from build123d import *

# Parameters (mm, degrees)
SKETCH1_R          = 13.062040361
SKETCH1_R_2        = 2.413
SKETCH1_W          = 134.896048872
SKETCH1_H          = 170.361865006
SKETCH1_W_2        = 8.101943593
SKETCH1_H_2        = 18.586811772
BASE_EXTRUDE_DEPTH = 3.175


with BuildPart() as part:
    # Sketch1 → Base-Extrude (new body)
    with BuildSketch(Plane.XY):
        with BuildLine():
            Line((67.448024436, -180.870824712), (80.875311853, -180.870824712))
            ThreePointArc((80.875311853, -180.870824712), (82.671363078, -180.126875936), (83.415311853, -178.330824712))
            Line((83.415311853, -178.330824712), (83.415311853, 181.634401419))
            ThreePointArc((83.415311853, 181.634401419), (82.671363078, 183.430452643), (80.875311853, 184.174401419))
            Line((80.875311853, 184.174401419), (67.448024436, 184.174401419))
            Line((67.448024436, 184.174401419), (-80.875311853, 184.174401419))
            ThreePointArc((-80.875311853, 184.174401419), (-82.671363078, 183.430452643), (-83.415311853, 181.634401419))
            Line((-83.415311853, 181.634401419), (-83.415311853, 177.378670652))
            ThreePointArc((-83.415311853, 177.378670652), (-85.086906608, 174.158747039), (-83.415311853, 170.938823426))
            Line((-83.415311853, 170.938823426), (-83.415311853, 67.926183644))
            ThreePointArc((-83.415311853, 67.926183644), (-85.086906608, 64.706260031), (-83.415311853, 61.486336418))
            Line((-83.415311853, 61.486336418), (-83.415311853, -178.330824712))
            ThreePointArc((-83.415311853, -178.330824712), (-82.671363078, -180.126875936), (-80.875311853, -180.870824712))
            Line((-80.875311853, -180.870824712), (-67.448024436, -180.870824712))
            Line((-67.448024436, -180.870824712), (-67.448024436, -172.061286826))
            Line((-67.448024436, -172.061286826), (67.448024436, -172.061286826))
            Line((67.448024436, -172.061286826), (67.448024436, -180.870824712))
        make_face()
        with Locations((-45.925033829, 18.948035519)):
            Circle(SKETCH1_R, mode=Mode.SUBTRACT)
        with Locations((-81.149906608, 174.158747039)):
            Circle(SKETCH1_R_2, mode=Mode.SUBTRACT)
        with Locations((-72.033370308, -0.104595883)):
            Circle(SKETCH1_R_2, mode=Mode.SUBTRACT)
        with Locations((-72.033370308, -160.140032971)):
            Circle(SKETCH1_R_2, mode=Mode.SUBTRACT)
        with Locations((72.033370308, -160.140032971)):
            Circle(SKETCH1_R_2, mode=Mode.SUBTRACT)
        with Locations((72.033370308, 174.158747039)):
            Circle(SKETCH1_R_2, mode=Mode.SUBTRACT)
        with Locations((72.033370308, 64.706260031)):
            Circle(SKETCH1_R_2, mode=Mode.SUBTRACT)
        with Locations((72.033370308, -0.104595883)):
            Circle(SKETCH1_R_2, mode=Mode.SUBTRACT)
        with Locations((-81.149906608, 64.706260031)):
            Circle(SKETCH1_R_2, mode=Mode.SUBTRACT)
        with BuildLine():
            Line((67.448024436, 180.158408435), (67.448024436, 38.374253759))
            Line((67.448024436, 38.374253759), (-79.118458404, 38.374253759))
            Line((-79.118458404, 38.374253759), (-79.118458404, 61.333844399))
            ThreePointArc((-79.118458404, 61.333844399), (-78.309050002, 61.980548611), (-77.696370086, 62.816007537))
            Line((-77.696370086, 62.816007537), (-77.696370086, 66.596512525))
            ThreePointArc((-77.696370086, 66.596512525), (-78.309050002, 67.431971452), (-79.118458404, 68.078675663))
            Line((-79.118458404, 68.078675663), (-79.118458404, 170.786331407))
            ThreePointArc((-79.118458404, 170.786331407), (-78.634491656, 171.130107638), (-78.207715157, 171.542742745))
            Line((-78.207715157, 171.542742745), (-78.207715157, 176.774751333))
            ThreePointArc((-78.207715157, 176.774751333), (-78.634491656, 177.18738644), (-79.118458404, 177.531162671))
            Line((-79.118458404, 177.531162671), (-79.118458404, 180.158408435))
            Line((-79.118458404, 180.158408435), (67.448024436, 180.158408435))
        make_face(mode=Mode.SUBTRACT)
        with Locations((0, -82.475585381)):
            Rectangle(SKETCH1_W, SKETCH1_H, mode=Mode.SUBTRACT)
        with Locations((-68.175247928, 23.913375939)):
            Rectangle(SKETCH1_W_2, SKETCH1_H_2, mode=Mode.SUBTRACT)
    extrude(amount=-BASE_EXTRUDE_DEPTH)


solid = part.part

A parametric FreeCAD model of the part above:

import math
import FreeCAD as App
import Part
import Sketcher

V = App.Vector
Q = App.Units.Quantity


def add_polygon(sketch, points):
    """Adds a closed chain of lines whose ends are joined by coincident constraints."""
    first, n = sketch.GeometryCount, len(points)
    for a, b in zip(points, points[1:] + points[:1]):
        sketch.addGeometry(Part.LineSegment(App.Vector(*a, 0), App.Vector(*b, 0)), False)
    for i in range(n):
        sketch.addConstraint(Sketcher.Constraint("Coincident", first + i, 2, first + (i + 1) % n, 1))

doc = App.newDocument("Part")
body = doc.addObject("PartDesign::Body", "Body")

# Sketch on XY plane
sketch1 = body.newObject("Sketcher::SketchObject", "Sketch")
sketch1.AttachmentSupport = (doc.getObject("XY_Plane"), [""])
sketch1.MapMode = "FlatFace"
sketch1.addGeometry(Part.LineSegment(V(67.448024, -180.870825, 0), V(80.875312, -180.870825, 0)), False)  # 0
sketch1.addGeometry(Part.ArcOfCircle(Part.Circle(V(80.875312, -178.330825, 0), V(0, 0, 1), 2.54), math.radians(-90), math.radians(0)), False)  # 1
sketch1.addGeometry(Part.LineSegment(V(83.415312, -178.330825, 0), V(83.415312, 181.634401, 0)), False)  # 2
sketch1.addGeometry(Part.ArcOfCircle(Part.Circle(V(80.875312, 181.634401, 0), V(0, 0, 1), 2.54), math.radians(0), math.radians(90)), False)  # 3
sketch1.addGeometry(Part.LineSegment(V(80.875312, 184.174401, 0), V(-80.875312, 184.174401, 0)), False)  # 4
sketch1.addGeometry(Part.ArcOfCircle(Part.Circle(V(-80.875312, 181.634401, 0), V(0, 0, 1), 2.54), math.radians(90), math.radians(180)), False)  # 5
sketch1.addGeometry(Part.LineSegment(V(-83.415312, 181.634401, 0), V(-83.415312, 177.378671, 0)), False)  # 6
sketch1.addGeometry(Part.ArcOfCircle(Part.Circle(V(-81.149907, 174.158747, 0), V(0, 0, 1), 3.937), math.radians(125.128636), math.radians(234.871364)), False)  # 7
sketch1.addGeometry(Part.LineSegment(V(-83.415312, 170.938823, 0), V(-83.415312, 67.926184, 0)), False)  # 8
sketch1.addGeometry(Part.ArcOfCircle(Part.Circle(V(-81.149907, 64.70626, 0), V(0, 0, 1), 3.937), math.radians(125.128636), math.radians(234.871364)), False)  # 9
sketch1.addGeometry(Part.LineSegment(V(-83.415312, 61.486336, 0), V(-83.415312, -178.330825, 0)), False)  # 10
sketch1.addGeometry(Part.ArcOfCircle(Part.Circle(V(-80.875312, -178.330825, 0), V(0, 0, 1), 2.54), math.radians(180), math.radians(270)), False)  # 11
sketch1.addGeometry(Part.LineSegment(V(-80.875312, -180.870825, 0), V(-67.448024, -180.870825, 0)), False)  # 12
sketch1.addGeometry(Part.LineSegment(V(-67.448024, -180.870825, 0), V(-67.448024, -172.061287, 0)), False)  # 13
sketch1.addGeometry(Part.LineSegment(V(-67.448024, -172.061287, 0), V(67.448024, -172.061287, 0)), False)  # 14
sketch1.addGeometry(Part.LineSegment(V(67.448024, -172.061287, 0), V(67.448024, -180.870825, 0)), False)  # 15
sketch1.addGeometry(Part.Circle(V(-72.03337, -160.140033, 0), V(0, 0, 1), 2.413), False)  # 16
sketch1.addGeometry(Part.Circle(V(-72.03337, -0.104596, 0), V(0, 0, 1), 2.413), False)  # 17
add_polygon(sketch1, [(67.448024, -167.656518), (-67.448024, -167.656518), (-67.448024, 2.705347), (67.448024, 2.705347)])  # lines 18-21
sketch1.addGeometry(Part.Circle(V(72.03337, -160.140033, 0), V(0, 0, 1), 2.413), False)  # 22
sketch1.addGeometry(Part.Circle(V(72.03337, -0.104596, 0), V(0, 0, 1), 2.413), False)  # 23
add_polygon(sketch1, [(-64.124276, 14.61997), (-72.22622, 14.61997), (-72.22622, 33.206782), (-64.124276, 33.206782)])  # lines 24-27
sketch1.addGeometry(Part.Circle(V(-45.925034, 18.948036, 0), V(0, 0, 1), 13.06204), False)  # 28
sketch1.addGeometry(Part.Circle(V(-81.149907, 64.70626, 0), V(0, 0, 1), 2.413), False)  # 29
sketch1.addGeometry(Part.Circle(V(-81.149907, 174.158747, 0), V(0, 0, 1), 2.413), False)  # 30
sketch1.addGeometry(Part.LineSegment(V(-79.118458, 180.158408, 0), V(67.448024, 180.158408, 0)), False)  # 31
sketch1.addGeometry(Part.LineSegment(V(67.448024, 180.158408, 0), V(67.448024, 38.374254, 0)), False)  # 32
sketch1.addGeometry(Part.LineSegment(V(67.448024, 38.374254, 0), V(-79.118458, 38.374254, 0)), False)  # 33
sketch1.addGeometry(Part.LineSegment(V(-79.118458, 38.374254, 0), V(-79.118458, 61.333844, 0)), False)  # 34
sketch1.addGeometry(Part.ArcOfCircle(Part.Circle(V(-81.149907, 64.70626, 0), V(0, 0, 1), 3.937), math.radians(-58.936424), math.radians(-28.693572)), False)  # 35
sketch1.addGeometry(Part.LineSegment(V(-77.69637, 62.816008, 0), V(-77.69637, 66.596513, 0)), False)  # 36
sketch1.addGeometry(Part.ArcOfCircle(Part.Circle(V(-81.149907, 64.70626, 0), V(0, 0, 1), 3.937), math.radians(28.693572), math.radians(58.936424)), False)  # 37
sketch1.addGeometry(Part.LineSegment(V(-79.118458, 68.078676, 0), V(-79.118458, 170.786331, 0)), False)  # 38
sketch1.addGeometry(Part.ArcOfCircle(Part.Circle(V(-81.149907, 174.158747, 0), V(0, 0, 1), 3.937), math.radians(-58.936424), math.radians(-41.641404)), False)  # 39
sketch1.addGeometry(Part.LineSegment(V(-78.207715, 171.542743, 0), V(-78.207715, 176.774751, 0)), False)  # 40
sketch1.addGeometry(Part.ArcOfCircle(Part.Circle(V(-81.149907, 174.158747, 0), V(0, 0, 1), 3.937), math.radians(41.641404), math.radians(58.936424)), False)  # 41
sketch1.addGeometry(Part.LineSegment(V(-79.118458, 177.531163, 0), V(-79.118458, 180.158408, 0)), False)  # 42
sketch1.addGeometry(Part.Circle(V(72.03337, 64.70626, 0), V(0, 0, 1), 2.413), False)  # 43
sketch1.addGeometry(Part.Circle(V(72.03337, 174.158747, 0), V(0, 0, 1), 2.413), False)  # 44
sketch1.addConstraint([
    Sketcher.Constraint("Tangent", 0, 2, 1, 1),
    Sketcher.Constraint("Tangent", 1, 2, 2, 1),
    Sketcher.Constraint("Tangent", 2, 2, 3, 1),
    Sketcher.Constraint("Tangent", 3, 2, 4, 1),
    Sketcher.Constraint("Tangent", 4, 2, 5, 1),
    Sketcher.Constraint("Tangent", 5, 2, 6, 1),
    Sketcher.Constraint("Coincident", 6, 2, 7, 1),
    Sketcher.Constraint("Coincident", 7, 2, 8, 1),
    Sketcher.Constraint("Coincident", 8, 2, 9, 1),
    Sketcher.Constraint("Coincident", 9, 2, 10, 1),
    Sketcher.Constraint("Tangent", 10, 2, 11, 1),
    Sketcher.Constraint("Tangent", 11, 2, 12, 1),
    Sketcher.Constraint("Coincident", 12, 2, 13, 1),
    Sketcher.Constraint("Coincident", 13, 2, 14, 1),
    Sketcher.Constraint("Coincident", 14, 2, 15, 1),
    Sketcher.Constraint("Coincident", 15, 2, 0, 1),
    Sketcher.Constraint("Coincident", 31, 2, 32, 1),
    Sketcher.Constraint("Coincident", 32, 2, 33, 1),
    Sketcher.Constraint("Coincident", 33, 2, 34, 1),
    Sketcher.Constraint("Coincident", 34, 2, 35, 1),
    Sketcher.Constraint("Coincident", 35, 2, 36, 1),
    Sketcher.Constraint("Coincident", 36, 2, 37, 1),
    Sketcher.Constraint("Coincident", 37, 2, 38, 1),
    Sketcher.Constraint("Coincident", 38, 2, 39, 1),
    Sketcher.Constraint("Coincident", 39, 2, 40, 1),
    Sketcher.Constraint("Coincident", 40, 2, 41, 1),
    Sketcher.Constraint("Coincident", 41, 2, 42, 1),
    Sketcher.Constraint("Coincident", 42, 2, 31, 1),
    Sketcher.Constraint("Horizontal", 0),
    Sketcher.Constraint("Vertical", 2),
    Sketcher.Constraint("Horizontal", 4),
    Sketcher.Constraint("Vertical", 6),
    Sketcher.Constraint("Vertical", 8),
    Sketcher.Constraint("Vertical", 10),
    Sketcher.Constraint("Horizontal", 12),
    Sketcher.Constraint("Vertical", 13),
    Sketcher.Constraint("Horizontal", 14),
    Sketcher.Constraint("Vertical", 15),
    Sketcher.Constraint("Horizontal", 18),
    Sketcher.Constraint("Vertical", 19),
    Sketcher.Constraint("Horizontal", 20),
    Sketcher.Constraint("Vertical", 21),
    Sketcher.Constraint("Horizontal", 24),
    Sketcher.Constraint("Vertical", 25),
    Sketcher.Constraint("Horizontal", 26),
    Sketcher.Constraint("Vertical", 27),
    Sketcher.Constraint("Horizontal", 31),
    Sketcher.Constraint("Vertical", 32),
    Sketcher.Constraint("Horizontal", 33),
    Sketcher.Constraint("Vertical", 34),
    Sketcher.Constraint("Vertical", 36),
    Sketcher.Constraint("Vertical", 38),
    Sketcher.Constraint("Vertical", 40),
    Sketcher.Constraint("Vertical", 42),
    Sketcher.Constraint("Coincident", 29, 3, 9, 3),
    Sketcher.Constraint("Coincident", 30, 3, 7, 3),
    Sketcher.Constraint("Coincident", 35, 3, 9, 3),
    Sketcher.Constraint("Coincident", 37, 3, 9, 3),
    Sketcher.Constraint("Coincident", 39, 3, 7, 3),
    Sketcher.Constraint("Coincident", 41, 3, 7, 3),
    Sketcher.Constraint("Equal", 1, 3),
    Sketcher.Constraint("Equal", 3, 5),
    Sketcher.Constraint("Equal", 7, 9),
    Sketcher.Constraint("Equal", 5, 11),
    Sketcher.Constraint("Equal", 16, 17),
    Sketcher.Constraint("Equal", 17, 22),
    Sketcher.Constraint("Equal", 22, 23),
    Sketcher.Constraint("Equal", 23, 29),
    Sketcher.Constraint("Equal", 29, 30),
    Sketcher.Constraint("Equal", 9, 35),
    Sketcher.Constraint("Equal", 35, 37),
    Sketcher.Constraint("Equal", 37, 39),
    Sketcher.Constraint("Equal", 39, 41),
    Sketcher.Constraint("Equal", 30, 43),
    Sketcher.Constraint("Equal", 43, 44),
    Sketcher.Constraint("Symmetric", 1, 3, 11, 3, -2),
    Sketcher.Constraint("Symmetric", 16, 3, 22, 3, -2),
    Sketcher.Constraint("Symmetric", 17, 3, 23, 3, -2),
    Sketcher.Constraint("Horizontal", 37, 3, 43, 3),
    Sketcher.Constraint("Horizontal", 41, 3, 44, 3),
    Sketcher.Constraint("Vertical", 7, 3, 9, 3),
    Sketcher.Constraint("Vertical", 5, 3, 11, 3),
    Sketcher.Constraint("Vertical", 16, 3, 17, 3),
    Sketcher.Constraint("Vertical", 23, 3, 43, 3),
    Sketcher.Constraint("Vertical", 43, 3, 44, 3),
    Sketcher.Constraint("Vertical", 6, 2, 7, 2),
    Sketcher.Constraint("Vertical", 13, 2, 18, 2),
    Sketcher.Constraint("Vertical", 15, 2, 20, 2),
    Sketcher.Constraint("Vertical", 21, 2, 31, 2),
    Sketcher.Constraint("Vertical", 34, 2, 37, 2),
    Sketcher.Constraint("Vertical", 38, 2, 41, 2),
    Sketcher.Constraint("Equal", 0, 12),
    Sketcher.Constraint("Radius", 1, Q("0.1 in")),
    Sketcher.Constraint("Diameter", 16, Q("0.19 in")),
    Sketcher.Constraint("Radius", 7, Q("0.155 in")),
    Sketcher.Constraint("Diameter", 28, Q("26.124081 mm")),
    Sketcher.Constraint("DistanceX", 33, 2, -1, 1, Q("3.1148999 in")),
    Sketcher.Constraint("DistanceX", 14, 1, 14, 2, Q("134.896049 mm")),
    Sketcher.Constraint("DistanceY", 6, 2, 6, 1, Q("4.255731 mm")),
    Sketcher.Constraint("DistanceY", 8, 2, 8, 1, Q("103.01264 mm")),
    Sketcher.Constraint("DistanceY", 10, 2, 10, 1, Q("239.817161 mm")),
    Sketcher.Constraint("DistanceY", 25, 1, 25, 2, Q("18.586812 mm")),
    Sketcher.Constraint("DistanceY", 34, 1, 34, 2, Q("22.959591 mm")),
    Sketcher.Constraint("DistanceY", 40, 1, 40, 2, Q("5.232009 mm")),
    Sketcher.Constraint("DistanceY", -1, 1, 3, 3, Q("181.634401 mm")),
    Sketcher.Constraint("DistanceX", 26, 2, 32, 2, Q("131.572301 mm")),
    Sketcher.Constraint("DistanceX", 0, 1, 0, 2, Q("13.427287 mm")),
    Sketcher.Constraint("DistanceX", 24, 2, 24, 1, Q("8.101944 mm")),
    Sketcher.Constraint("DistanceY", 2, 1, 2, 2, Q("359.965226 mm")),
    Sketcher.Constraint("DistanceY", 13, 1, 13, 2, Q("8.809538 mm")),
    Sketcher.Constraint("DistanceY", 19, 1, 19, 2, Q("170.361865 mm")),
    Sketcher.Constraint("DistanceY", 32, 2, 32, 1, Q("141.784155 mm")),
    Sketcher.Constraint("DistanceY", 36, 1, 36, 2, Q("3.780505 mm")),
    Sketcher.Constraint("DistanceX", 16, 3, -1, 1, Q("72.03337 mm")),
    Sketcher.Constraint("DistanceY", -1, 1, 24, 2, Q("14.61997 mm")),
    Sketcher.Constraint("DistanceY", 11, 3, 16, 3, Q("18.190792 mm")),
    Sketcher.Constraint("DistanceY", 11, 3, 17, 3, Q("178.226229 mm")),
    Sketcher.Constraint("DistanceY", 17, 3, 28, 3, Q("19.052631 mm")),
    Sketcher.Constraint("DistanceX", 5, 3, 28, 3, Q("34.950278 mm")),
    Sketcher.Constraint("DistanceY", 13, 2, 18, 2, Q("4.404769 mm")),
])
pad1 = body.newObject("PartDesign::Pad", "Pad")
pad1.Profile = sketch1
pad1.Length = Q("0.125 in")
pad1.Reversed = True

doc.recompute()
